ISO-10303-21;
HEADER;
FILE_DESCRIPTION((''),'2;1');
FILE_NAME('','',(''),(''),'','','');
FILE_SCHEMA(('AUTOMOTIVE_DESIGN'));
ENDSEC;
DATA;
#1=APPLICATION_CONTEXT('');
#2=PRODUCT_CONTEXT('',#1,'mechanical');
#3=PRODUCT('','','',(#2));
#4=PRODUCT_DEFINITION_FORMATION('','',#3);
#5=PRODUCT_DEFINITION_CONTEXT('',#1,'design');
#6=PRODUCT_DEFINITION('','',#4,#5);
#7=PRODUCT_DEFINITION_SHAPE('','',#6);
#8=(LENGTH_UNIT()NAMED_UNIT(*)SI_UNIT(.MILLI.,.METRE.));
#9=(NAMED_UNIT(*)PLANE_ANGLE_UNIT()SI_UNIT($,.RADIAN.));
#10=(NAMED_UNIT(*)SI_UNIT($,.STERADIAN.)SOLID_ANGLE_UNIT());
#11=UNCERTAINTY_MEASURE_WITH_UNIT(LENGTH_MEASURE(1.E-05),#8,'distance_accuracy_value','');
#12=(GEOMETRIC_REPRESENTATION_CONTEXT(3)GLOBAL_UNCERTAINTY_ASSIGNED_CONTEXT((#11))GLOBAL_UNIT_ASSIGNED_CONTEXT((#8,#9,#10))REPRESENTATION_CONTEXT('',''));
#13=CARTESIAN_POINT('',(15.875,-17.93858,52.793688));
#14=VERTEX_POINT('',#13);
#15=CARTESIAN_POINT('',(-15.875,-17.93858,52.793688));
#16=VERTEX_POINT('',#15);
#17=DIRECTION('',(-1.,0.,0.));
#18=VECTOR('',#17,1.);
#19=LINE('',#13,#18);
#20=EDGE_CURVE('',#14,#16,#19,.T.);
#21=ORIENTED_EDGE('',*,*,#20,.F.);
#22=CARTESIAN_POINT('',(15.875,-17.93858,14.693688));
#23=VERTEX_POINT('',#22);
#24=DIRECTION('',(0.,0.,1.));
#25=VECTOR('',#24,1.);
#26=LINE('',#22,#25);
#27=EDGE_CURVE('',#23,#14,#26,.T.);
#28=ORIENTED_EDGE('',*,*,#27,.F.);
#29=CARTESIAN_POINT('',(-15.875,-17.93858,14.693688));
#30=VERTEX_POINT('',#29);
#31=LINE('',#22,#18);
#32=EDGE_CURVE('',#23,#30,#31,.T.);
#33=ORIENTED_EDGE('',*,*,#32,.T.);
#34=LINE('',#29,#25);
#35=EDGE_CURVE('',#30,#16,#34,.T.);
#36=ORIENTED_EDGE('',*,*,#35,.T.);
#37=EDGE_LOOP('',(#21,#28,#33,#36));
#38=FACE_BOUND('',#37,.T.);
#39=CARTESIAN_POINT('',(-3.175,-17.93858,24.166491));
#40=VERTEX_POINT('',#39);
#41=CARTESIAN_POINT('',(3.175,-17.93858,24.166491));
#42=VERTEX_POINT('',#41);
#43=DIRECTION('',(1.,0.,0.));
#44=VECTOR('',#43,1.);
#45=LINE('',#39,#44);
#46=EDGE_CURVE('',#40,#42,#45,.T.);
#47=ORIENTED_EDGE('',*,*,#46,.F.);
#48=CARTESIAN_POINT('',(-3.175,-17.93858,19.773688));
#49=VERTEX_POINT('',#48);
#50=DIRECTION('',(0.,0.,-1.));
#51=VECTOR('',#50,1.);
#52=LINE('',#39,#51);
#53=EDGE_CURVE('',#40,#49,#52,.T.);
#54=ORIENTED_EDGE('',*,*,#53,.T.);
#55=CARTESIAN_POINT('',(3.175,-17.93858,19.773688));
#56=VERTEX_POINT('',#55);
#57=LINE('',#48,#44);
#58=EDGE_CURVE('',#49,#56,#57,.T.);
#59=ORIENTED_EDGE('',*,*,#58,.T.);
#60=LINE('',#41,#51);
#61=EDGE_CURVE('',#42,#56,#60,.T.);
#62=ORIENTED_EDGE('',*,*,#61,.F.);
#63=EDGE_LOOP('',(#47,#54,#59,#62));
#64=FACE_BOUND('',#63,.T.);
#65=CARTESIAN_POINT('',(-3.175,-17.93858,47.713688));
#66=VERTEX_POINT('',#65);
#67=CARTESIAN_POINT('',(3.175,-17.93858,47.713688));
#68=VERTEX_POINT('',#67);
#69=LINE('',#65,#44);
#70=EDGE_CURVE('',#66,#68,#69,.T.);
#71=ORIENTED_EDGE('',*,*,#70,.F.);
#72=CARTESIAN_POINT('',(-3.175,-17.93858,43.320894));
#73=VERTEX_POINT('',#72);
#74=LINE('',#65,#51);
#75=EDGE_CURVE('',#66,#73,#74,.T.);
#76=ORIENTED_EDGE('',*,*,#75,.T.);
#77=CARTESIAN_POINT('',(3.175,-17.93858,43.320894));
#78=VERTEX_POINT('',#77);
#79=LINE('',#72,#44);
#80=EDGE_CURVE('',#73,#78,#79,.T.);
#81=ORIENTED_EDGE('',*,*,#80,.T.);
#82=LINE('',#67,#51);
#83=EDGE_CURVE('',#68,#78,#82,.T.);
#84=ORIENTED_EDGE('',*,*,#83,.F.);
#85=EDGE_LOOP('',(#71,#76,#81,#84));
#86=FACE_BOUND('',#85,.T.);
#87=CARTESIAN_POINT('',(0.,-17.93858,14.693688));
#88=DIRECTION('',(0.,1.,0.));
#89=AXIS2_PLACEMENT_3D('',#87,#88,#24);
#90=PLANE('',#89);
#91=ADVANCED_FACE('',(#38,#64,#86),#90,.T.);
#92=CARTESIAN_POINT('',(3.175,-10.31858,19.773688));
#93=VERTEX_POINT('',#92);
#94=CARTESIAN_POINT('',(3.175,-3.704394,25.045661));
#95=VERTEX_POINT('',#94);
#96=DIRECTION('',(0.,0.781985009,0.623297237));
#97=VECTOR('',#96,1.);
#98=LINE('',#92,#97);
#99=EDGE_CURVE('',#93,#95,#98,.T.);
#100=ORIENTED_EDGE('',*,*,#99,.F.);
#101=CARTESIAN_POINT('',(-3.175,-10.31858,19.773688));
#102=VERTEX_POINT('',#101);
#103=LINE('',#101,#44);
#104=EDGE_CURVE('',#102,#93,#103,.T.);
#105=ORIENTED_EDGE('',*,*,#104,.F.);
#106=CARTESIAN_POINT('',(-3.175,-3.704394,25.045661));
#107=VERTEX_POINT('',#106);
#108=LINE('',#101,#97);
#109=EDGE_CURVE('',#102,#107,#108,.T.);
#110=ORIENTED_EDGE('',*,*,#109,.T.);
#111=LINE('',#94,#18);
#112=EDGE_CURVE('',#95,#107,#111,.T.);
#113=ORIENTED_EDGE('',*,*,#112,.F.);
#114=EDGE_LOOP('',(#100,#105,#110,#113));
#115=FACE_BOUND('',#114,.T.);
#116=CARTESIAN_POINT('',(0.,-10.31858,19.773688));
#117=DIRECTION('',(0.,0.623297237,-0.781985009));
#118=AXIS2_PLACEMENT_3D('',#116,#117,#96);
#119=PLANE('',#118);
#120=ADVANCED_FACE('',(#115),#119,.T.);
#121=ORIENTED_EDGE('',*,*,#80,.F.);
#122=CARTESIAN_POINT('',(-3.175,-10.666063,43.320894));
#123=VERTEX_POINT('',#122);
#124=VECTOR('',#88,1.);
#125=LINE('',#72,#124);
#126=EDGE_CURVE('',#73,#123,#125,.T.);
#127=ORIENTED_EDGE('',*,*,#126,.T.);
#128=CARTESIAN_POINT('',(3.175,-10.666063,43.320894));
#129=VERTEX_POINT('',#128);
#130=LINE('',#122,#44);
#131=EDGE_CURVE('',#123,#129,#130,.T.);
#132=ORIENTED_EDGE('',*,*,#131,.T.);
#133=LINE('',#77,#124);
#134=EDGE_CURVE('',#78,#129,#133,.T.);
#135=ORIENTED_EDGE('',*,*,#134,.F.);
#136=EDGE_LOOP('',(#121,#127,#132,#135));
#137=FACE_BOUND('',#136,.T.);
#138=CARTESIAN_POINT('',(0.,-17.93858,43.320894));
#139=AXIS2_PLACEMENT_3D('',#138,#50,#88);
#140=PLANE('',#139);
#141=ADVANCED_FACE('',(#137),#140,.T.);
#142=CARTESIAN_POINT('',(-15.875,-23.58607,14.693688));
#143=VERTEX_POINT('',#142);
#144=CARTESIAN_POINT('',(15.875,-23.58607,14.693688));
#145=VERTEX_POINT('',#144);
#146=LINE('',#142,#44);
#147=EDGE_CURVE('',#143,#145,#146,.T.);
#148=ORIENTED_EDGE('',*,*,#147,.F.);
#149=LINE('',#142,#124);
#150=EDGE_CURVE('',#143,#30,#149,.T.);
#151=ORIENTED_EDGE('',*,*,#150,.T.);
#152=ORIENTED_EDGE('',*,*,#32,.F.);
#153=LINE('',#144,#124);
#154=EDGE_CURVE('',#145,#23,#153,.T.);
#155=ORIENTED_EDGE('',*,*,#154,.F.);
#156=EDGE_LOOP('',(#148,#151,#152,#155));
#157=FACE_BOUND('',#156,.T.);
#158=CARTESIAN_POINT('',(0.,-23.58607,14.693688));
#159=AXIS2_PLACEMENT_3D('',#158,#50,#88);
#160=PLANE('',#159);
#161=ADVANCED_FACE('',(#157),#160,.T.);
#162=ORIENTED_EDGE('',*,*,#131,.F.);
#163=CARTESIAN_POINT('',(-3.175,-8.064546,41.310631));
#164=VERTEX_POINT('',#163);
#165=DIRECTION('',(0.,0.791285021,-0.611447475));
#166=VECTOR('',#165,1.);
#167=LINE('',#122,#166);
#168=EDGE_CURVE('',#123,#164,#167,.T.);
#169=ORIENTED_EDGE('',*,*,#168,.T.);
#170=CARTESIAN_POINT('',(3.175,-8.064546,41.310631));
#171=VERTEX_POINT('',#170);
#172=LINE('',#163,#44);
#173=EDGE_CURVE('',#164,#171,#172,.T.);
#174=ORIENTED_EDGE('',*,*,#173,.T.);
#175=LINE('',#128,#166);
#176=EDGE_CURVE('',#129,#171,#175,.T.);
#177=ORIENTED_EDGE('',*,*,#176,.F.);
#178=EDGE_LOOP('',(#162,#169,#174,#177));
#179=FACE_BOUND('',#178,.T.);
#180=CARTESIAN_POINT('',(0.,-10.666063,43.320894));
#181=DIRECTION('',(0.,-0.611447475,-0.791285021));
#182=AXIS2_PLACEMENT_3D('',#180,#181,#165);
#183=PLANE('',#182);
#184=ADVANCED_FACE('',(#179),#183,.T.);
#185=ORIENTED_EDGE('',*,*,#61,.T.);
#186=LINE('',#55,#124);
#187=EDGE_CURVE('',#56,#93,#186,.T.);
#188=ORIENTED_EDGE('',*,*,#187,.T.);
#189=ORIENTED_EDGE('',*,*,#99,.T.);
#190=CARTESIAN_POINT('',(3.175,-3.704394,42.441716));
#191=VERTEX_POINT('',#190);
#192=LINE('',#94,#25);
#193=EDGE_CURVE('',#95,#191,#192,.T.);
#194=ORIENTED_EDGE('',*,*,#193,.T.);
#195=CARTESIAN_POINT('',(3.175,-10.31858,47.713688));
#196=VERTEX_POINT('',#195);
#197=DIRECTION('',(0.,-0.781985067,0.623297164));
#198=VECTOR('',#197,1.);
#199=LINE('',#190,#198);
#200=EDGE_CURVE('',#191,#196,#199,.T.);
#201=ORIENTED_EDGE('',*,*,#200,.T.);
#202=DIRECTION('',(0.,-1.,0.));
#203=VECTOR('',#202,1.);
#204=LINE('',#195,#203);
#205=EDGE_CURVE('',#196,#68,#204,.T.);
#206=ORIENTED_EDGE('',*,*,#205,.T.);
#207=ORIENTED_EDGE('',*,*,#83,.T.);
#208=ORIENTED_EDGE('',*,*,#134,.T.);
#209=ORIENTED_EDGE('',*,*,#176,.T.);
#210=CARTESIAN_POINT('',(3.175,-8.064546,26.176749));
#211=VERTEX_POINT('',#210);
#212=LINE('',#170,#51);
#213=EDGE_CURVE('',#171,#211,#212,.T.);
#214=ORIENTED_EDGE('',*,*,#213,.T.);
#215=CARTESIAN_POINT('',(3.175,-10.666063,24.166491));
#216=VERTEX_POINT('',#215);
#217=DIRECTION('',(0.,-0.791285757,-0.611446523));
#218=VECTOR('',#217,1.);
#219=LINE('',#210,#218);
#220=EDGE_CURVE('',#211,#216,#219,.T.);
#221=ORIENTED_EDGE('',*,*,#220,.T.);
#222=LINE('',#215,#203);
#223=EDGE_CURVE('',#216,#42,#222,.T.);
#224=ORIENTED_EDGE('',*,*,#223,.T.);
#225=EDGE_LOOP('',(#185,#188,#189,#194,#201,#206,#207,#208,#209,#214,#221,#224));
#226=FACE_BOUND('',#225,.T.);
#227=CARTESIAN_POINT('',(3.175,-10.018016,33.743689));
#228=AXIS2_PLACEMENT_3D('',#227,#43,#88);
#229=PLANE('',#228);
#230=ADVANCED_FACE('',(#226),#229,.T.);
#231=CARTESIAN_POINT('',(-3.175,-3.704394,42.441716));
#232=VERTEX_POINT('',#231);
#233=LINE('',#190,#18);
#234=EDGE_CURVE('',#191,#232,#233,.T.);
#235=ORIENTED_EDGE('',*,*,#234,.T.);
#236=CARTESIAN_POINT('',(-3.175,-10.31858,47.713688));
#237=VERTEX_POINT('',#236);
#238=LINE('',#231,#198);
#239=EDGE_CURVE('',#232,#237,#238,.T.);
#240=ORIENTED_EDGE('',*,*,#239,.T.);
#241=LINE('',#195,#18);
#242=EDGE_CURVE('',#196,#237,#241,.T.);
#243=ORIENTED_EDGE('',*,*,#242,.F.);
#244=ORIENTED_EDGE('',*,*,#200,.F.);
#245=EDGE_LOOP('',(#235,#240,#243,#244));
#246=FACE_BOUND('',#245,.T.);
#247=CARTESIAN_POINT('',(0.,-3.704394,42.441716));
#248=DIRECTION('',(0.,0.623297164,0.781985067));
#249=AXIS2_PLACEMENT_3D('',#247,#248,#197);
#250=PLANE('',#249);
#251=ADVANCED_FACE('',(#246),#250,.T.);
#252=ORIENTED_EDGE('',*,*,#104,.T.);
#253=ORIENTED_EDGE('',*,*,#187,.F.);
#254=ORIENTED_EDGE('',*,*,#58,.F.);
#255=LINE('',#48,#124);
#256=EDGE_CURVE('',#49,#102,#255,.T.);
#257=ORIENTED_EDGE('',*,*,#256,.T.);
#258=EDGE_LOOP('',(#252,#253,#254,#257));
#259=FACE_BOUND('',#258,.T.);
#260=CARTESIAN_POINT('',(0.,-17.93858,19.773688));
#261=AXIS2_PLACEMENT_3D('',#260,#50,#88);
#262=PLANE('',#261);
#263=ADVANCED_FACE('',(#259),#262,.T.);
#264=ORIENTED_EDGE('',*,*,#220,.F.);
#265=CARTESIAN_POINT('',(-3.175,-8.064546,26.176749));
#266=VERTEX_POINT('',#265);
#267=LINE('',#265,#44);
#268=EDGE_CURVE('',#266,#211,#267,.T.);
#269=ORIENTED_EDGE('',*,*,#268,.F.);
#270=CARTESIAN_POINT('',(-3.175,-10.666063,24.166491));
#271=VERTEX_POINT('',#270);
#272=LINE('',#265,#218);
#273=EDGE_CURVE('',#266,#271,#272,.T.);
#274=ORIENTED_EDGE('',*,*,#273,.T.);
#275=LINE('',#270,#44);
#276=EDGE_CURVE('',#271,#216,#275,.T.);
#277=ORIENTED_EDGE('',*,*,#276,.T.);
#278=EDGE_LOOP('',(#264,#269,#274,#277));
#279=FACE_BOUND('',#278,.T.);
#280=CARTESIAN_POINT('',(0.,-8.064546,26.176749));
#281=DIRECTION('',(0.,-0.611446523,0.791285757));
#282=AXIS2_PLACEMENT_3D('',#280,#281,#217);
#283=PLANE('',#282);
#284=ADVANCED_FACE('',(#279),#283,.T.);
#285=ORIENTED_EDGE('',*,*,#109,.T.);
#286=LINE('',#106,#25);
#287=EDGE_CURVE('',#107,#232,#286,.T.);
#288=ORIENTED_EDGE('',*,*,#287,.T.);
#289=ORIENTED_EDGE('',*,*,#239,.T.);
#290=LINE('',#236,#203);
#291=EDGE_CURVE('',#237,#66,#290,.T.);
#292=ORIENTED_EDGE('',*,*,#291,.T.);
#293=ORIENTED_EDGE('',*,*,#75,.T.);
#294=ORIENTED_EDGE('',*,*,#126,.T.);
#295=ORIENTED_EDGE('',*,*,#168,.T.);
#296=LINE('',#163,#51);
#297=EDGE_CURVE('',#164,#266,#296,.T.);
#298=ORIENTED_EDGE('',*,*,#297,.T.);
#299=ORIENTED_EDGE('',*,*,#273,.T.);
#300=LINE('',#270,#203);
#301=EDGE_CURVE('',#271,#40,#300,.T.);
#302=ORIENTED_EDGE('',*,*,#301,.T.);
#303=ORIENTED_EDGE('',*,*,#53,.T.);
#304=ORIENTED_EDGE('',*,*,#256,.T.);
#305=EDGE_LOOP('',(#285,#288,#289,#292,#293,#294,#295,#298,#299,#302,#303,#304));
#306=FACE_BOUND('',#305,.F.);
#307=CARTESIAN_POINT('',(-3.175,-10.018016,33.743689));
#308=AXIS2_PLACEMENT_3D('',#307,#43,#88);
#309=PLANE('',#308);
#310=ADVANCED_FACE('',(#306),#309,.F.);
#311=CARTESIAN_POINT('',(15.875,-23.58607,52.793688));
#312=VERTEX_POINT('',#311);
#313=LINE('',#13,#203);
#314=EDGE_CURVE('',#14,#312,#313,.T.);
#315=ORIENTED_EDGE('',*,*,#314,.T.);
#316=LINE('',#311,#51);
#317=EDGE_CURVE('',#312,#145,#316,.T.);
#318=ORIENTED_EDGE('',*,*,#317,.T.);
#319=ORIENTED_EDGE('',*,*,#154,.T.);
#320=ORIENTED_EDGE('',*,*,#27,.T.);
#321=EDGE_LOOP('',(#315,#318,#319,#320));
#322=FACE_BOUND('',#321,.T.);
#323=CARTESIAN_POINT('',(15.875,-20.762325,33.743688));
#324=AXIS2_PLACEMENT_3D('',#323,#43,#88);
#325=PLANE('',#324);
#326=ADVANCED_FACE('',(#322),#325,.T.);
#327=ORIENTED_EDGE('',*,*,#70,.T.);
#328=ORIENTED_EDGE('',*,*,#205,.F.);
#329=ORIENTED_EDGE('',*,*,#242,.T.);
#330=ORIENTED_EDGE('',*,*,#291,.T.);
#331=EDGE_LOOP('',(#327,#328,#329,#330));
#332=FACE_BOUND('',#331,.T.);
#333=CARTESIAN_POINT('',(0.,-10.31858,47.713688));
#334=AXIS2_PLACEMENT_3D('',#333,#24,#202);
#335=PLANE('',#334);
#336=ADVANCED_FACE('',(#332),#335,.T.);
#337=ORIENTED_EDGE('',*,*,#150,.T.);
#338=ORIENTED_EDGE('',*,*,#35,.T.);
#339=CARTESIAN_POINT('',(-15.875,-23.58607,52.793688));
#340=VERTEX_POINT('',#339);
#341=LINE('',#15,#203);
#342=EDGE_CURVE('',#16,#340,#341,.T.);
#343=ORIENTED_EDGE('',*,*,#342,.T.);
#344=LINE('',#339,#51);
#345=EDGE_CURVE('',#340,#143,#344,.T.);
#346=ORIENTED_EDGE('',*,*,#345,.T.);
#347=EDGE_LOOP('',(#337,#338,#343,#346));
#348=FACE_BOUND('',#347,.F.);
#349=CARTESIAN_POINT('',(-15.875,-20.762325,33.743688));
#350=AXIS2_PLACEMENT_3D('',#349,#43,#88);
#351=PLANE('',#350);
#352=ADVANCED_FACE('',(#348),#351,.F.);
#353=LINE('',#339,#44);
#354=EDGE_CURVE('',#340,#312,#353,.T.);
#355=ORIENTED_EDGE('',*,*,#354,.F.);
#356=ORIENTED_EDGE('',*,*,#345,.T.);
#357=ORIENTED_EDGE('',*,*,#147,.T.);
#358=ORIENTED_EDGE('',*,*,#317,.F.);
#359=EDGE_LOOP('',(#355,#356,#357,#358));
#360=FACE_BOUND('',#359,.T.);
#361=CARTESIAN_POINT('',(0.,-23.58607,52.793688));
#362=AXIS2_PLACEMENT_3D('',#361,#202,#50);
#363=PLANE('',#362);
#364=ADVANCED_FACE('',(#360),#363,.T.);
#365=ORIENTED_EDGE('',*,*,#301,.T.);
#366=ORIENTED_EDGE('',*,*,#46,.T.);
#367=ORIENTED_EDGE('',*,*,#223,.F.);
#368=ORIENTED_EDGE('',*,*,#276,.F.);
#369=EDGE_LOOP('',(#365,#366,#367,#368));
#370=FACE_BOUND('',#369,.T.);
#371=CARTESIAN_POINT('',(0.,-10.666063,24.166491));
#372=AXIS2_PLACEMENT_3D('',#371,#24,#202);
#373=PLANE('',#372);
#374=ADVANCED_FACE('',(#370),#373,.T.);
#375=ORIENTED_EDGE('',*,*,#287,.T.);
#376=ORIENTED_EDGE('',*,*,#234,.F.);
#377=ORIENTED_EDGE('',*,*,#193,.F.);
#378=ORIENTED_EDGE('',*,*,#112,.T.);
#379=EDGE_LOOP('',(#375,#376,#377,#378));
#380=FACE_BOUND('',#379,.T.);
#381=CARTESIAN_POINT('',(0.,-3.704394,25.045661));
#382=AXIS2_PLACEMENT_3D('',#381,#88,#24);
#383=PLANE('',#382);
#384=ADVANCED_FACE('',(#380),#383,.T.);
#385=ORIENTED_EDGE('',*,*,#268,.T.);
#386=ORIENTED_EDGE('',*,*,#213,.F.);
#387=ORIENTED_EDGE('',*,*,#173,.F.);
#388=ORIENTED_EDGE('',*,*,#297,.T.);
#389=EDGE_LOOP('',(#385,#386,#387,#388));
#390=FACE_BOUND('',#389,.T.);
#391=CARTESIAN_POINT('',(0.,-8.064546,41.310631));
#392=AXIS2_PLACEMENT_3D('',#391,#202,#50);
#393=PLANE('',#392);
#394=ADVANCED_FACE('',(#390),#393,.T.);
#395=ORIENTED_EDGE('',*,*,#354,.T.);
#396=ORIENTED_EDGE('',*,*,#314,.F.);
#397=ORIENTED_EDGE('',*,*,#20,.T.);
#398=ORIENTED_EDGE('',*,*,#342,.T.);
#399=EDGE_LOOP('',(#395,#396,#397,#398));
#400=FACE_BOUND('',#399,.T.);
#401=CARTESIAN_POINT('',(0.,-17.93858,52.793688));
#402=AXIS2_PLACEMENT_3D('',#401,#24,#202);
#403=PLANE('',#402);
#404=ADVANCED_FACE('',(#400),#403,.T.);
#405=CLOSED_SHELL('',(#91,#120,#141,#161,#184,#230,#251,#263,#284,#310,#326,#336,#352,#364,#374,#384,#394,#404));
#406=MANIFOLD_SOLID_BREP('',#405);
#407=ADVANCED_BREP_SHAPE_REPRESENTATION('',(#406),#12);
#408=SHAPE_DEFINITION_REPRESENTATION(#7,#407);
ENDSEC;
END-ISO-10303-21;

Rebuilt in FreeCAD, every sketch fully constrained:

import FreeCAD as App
import Part
import Sketcher
Q = App.Units.Quantity


def add_polygon(sketch, points):
    """Adds a closed chain of lines whose ends are joined by coincident constraints."""
    first, n = sketch.GeometryCount, len(points)
    for a, b in zip(points, points[1:] + points[:1]):
        sketch.addGeometry(Part.LineSegment(App.Vector(*a, 0), App.Vector(*b, 0)), False)
    for i in range(n):
        sketch.addConstraint(Sketcher.Constraint("Coincident", first + i, 2, first + (i + 1) % n, 1))

doc = App.newDocument("Part")
body = doc.addObject("PartDesign::Body", "Body")

# Sketch on YZ plane
sketch1 = doc.addObject("Sketcher::SketchObject", "Sketch")
body.addObject(sketch1)
sketch1.AttachmentSupport = (doc.YZ_Plane, [""])
sketch1.MapMode = "FlatFace"
add_polygon(sketch1, [(-18, 53), (-24, 53), (-24, 15), (-18, 15)])  # lines 0-3
sketch1.addConstraint([
    Sketcher.Constraint("Horizontal", 0),
    Sketcher.Constraint("Vertical", 1),
    Sketcher.Constraint("Horizontal", 2),
    Sketcher.Constraint("Vertical", 3),
    Sketcher.Constraint("DistanceY", 1, 2, 1, 1, Q("1.5 in")),
    Sketcher.Constraint("DistanceX", 0, 2, 0, 1, 5.64749),
    Sketcher.Constraint("DistanceX", 0, 2, -1, 1, 23.58607),
    Sketcher.Constraint("DistanceY", -1, 1, 0, 2, 52.793688),
])
pad1 = doc.addObject("PartDesign::Pad", "Pad")
body.addObject(pad1)
pad1.Profile = sketch1
pad1.Length = Q("1.25 in")
pad1.Midplane = True

# Sketch on YZ plane
sketch2 = doc.addObject("Sketcher::SketchObject", "Sketch001")
body.addObject(sketch2)
sketch2.AttachmentSupport = (doc.YZ_Plane, [""])
sketch2.MapMode = "FlatFace"
add_polygon(sketch2, [(-10.3, 47.7), (-17.9, 47.7), (-17.9, 43.3), (-10.7, 43.3), (-8.1, 41.3), (-8.1, 26.2), (-10.7, 24.2), (-17.9, 24.2), (-17.9, 19.8), (-10.3, 19.8), (-3.7, 25), (-3.7, 42.4)])  # lines 0-11
sketch2.addConstraint([
    Sketcher.Constraint("Horizontal", 0),
    Sketcher.Constraint("Vertical", 1),
    Sketcher.Constraint("Horizontal", 2),
    Sketcher.Constraint("Vertical", 4),
    Sketcher.Constraint("Horizontal", 6),
    Sketcher.Constraint("Vertical", 7),
    Sketcher.Constraint("Horizontal", 8),
    Sketcher.Constraint("Vertical", 10),
    Sketcher.Constraint("Vertical", 2, 2, 5, 2),
    Sketcher.Constraint("Vertical", 1, 2, 6, 2),
    Sketcher.Constraint("Vertical", 8, 2, 11, 2),
    Sketcher.Constraint("Equal", 9, 11),
    Sketcher.Constraint("DistanceX", 0, 2, 0, 1, Q("0.3 in")),
    Sketcher.Constraint("Distance", 9, Q("0.333 in")),
    Sketcher.Constraint("Distance", 3, 3.287712),
    Sketcher.Constraint("Distance", 5, 3.287709),
    Sketcher.Constraint("DistanceX", 2, 1, 2, 2, 7.272517),
    Sketcher.Constraint("DistanceY", 1, 2, 1, 1, 4.392794),
    Sketcher.Constraint("DistanceY", 4, 2, 4, 1, 15.133882),
    Sketcher.Constraint("DistanceY", 7, 2, 7, 1, 4.392803),
    Sketcher.Constraint("DistanceY", 10, 1, 10, 2, 17.396055),
    Sketcher.Constraint("DistanceX", 0, 2, -1, 1, 17.93858),
    Sketcher.Constraint("DistanceY", -1, 1, 3, 2, 41.310631),
    Sketcher.Constraint("DistanceY", -1, 1, 5, 2, 24.166491),
])
pad2 = doc.addObject("PartDesign::Pad", "Pad001")
body.addObject(pad2)
pad2.Profile = sketch2
pad2.Length = Q("0.25 in")
pad2.Midplane = True

doc.recompute()
